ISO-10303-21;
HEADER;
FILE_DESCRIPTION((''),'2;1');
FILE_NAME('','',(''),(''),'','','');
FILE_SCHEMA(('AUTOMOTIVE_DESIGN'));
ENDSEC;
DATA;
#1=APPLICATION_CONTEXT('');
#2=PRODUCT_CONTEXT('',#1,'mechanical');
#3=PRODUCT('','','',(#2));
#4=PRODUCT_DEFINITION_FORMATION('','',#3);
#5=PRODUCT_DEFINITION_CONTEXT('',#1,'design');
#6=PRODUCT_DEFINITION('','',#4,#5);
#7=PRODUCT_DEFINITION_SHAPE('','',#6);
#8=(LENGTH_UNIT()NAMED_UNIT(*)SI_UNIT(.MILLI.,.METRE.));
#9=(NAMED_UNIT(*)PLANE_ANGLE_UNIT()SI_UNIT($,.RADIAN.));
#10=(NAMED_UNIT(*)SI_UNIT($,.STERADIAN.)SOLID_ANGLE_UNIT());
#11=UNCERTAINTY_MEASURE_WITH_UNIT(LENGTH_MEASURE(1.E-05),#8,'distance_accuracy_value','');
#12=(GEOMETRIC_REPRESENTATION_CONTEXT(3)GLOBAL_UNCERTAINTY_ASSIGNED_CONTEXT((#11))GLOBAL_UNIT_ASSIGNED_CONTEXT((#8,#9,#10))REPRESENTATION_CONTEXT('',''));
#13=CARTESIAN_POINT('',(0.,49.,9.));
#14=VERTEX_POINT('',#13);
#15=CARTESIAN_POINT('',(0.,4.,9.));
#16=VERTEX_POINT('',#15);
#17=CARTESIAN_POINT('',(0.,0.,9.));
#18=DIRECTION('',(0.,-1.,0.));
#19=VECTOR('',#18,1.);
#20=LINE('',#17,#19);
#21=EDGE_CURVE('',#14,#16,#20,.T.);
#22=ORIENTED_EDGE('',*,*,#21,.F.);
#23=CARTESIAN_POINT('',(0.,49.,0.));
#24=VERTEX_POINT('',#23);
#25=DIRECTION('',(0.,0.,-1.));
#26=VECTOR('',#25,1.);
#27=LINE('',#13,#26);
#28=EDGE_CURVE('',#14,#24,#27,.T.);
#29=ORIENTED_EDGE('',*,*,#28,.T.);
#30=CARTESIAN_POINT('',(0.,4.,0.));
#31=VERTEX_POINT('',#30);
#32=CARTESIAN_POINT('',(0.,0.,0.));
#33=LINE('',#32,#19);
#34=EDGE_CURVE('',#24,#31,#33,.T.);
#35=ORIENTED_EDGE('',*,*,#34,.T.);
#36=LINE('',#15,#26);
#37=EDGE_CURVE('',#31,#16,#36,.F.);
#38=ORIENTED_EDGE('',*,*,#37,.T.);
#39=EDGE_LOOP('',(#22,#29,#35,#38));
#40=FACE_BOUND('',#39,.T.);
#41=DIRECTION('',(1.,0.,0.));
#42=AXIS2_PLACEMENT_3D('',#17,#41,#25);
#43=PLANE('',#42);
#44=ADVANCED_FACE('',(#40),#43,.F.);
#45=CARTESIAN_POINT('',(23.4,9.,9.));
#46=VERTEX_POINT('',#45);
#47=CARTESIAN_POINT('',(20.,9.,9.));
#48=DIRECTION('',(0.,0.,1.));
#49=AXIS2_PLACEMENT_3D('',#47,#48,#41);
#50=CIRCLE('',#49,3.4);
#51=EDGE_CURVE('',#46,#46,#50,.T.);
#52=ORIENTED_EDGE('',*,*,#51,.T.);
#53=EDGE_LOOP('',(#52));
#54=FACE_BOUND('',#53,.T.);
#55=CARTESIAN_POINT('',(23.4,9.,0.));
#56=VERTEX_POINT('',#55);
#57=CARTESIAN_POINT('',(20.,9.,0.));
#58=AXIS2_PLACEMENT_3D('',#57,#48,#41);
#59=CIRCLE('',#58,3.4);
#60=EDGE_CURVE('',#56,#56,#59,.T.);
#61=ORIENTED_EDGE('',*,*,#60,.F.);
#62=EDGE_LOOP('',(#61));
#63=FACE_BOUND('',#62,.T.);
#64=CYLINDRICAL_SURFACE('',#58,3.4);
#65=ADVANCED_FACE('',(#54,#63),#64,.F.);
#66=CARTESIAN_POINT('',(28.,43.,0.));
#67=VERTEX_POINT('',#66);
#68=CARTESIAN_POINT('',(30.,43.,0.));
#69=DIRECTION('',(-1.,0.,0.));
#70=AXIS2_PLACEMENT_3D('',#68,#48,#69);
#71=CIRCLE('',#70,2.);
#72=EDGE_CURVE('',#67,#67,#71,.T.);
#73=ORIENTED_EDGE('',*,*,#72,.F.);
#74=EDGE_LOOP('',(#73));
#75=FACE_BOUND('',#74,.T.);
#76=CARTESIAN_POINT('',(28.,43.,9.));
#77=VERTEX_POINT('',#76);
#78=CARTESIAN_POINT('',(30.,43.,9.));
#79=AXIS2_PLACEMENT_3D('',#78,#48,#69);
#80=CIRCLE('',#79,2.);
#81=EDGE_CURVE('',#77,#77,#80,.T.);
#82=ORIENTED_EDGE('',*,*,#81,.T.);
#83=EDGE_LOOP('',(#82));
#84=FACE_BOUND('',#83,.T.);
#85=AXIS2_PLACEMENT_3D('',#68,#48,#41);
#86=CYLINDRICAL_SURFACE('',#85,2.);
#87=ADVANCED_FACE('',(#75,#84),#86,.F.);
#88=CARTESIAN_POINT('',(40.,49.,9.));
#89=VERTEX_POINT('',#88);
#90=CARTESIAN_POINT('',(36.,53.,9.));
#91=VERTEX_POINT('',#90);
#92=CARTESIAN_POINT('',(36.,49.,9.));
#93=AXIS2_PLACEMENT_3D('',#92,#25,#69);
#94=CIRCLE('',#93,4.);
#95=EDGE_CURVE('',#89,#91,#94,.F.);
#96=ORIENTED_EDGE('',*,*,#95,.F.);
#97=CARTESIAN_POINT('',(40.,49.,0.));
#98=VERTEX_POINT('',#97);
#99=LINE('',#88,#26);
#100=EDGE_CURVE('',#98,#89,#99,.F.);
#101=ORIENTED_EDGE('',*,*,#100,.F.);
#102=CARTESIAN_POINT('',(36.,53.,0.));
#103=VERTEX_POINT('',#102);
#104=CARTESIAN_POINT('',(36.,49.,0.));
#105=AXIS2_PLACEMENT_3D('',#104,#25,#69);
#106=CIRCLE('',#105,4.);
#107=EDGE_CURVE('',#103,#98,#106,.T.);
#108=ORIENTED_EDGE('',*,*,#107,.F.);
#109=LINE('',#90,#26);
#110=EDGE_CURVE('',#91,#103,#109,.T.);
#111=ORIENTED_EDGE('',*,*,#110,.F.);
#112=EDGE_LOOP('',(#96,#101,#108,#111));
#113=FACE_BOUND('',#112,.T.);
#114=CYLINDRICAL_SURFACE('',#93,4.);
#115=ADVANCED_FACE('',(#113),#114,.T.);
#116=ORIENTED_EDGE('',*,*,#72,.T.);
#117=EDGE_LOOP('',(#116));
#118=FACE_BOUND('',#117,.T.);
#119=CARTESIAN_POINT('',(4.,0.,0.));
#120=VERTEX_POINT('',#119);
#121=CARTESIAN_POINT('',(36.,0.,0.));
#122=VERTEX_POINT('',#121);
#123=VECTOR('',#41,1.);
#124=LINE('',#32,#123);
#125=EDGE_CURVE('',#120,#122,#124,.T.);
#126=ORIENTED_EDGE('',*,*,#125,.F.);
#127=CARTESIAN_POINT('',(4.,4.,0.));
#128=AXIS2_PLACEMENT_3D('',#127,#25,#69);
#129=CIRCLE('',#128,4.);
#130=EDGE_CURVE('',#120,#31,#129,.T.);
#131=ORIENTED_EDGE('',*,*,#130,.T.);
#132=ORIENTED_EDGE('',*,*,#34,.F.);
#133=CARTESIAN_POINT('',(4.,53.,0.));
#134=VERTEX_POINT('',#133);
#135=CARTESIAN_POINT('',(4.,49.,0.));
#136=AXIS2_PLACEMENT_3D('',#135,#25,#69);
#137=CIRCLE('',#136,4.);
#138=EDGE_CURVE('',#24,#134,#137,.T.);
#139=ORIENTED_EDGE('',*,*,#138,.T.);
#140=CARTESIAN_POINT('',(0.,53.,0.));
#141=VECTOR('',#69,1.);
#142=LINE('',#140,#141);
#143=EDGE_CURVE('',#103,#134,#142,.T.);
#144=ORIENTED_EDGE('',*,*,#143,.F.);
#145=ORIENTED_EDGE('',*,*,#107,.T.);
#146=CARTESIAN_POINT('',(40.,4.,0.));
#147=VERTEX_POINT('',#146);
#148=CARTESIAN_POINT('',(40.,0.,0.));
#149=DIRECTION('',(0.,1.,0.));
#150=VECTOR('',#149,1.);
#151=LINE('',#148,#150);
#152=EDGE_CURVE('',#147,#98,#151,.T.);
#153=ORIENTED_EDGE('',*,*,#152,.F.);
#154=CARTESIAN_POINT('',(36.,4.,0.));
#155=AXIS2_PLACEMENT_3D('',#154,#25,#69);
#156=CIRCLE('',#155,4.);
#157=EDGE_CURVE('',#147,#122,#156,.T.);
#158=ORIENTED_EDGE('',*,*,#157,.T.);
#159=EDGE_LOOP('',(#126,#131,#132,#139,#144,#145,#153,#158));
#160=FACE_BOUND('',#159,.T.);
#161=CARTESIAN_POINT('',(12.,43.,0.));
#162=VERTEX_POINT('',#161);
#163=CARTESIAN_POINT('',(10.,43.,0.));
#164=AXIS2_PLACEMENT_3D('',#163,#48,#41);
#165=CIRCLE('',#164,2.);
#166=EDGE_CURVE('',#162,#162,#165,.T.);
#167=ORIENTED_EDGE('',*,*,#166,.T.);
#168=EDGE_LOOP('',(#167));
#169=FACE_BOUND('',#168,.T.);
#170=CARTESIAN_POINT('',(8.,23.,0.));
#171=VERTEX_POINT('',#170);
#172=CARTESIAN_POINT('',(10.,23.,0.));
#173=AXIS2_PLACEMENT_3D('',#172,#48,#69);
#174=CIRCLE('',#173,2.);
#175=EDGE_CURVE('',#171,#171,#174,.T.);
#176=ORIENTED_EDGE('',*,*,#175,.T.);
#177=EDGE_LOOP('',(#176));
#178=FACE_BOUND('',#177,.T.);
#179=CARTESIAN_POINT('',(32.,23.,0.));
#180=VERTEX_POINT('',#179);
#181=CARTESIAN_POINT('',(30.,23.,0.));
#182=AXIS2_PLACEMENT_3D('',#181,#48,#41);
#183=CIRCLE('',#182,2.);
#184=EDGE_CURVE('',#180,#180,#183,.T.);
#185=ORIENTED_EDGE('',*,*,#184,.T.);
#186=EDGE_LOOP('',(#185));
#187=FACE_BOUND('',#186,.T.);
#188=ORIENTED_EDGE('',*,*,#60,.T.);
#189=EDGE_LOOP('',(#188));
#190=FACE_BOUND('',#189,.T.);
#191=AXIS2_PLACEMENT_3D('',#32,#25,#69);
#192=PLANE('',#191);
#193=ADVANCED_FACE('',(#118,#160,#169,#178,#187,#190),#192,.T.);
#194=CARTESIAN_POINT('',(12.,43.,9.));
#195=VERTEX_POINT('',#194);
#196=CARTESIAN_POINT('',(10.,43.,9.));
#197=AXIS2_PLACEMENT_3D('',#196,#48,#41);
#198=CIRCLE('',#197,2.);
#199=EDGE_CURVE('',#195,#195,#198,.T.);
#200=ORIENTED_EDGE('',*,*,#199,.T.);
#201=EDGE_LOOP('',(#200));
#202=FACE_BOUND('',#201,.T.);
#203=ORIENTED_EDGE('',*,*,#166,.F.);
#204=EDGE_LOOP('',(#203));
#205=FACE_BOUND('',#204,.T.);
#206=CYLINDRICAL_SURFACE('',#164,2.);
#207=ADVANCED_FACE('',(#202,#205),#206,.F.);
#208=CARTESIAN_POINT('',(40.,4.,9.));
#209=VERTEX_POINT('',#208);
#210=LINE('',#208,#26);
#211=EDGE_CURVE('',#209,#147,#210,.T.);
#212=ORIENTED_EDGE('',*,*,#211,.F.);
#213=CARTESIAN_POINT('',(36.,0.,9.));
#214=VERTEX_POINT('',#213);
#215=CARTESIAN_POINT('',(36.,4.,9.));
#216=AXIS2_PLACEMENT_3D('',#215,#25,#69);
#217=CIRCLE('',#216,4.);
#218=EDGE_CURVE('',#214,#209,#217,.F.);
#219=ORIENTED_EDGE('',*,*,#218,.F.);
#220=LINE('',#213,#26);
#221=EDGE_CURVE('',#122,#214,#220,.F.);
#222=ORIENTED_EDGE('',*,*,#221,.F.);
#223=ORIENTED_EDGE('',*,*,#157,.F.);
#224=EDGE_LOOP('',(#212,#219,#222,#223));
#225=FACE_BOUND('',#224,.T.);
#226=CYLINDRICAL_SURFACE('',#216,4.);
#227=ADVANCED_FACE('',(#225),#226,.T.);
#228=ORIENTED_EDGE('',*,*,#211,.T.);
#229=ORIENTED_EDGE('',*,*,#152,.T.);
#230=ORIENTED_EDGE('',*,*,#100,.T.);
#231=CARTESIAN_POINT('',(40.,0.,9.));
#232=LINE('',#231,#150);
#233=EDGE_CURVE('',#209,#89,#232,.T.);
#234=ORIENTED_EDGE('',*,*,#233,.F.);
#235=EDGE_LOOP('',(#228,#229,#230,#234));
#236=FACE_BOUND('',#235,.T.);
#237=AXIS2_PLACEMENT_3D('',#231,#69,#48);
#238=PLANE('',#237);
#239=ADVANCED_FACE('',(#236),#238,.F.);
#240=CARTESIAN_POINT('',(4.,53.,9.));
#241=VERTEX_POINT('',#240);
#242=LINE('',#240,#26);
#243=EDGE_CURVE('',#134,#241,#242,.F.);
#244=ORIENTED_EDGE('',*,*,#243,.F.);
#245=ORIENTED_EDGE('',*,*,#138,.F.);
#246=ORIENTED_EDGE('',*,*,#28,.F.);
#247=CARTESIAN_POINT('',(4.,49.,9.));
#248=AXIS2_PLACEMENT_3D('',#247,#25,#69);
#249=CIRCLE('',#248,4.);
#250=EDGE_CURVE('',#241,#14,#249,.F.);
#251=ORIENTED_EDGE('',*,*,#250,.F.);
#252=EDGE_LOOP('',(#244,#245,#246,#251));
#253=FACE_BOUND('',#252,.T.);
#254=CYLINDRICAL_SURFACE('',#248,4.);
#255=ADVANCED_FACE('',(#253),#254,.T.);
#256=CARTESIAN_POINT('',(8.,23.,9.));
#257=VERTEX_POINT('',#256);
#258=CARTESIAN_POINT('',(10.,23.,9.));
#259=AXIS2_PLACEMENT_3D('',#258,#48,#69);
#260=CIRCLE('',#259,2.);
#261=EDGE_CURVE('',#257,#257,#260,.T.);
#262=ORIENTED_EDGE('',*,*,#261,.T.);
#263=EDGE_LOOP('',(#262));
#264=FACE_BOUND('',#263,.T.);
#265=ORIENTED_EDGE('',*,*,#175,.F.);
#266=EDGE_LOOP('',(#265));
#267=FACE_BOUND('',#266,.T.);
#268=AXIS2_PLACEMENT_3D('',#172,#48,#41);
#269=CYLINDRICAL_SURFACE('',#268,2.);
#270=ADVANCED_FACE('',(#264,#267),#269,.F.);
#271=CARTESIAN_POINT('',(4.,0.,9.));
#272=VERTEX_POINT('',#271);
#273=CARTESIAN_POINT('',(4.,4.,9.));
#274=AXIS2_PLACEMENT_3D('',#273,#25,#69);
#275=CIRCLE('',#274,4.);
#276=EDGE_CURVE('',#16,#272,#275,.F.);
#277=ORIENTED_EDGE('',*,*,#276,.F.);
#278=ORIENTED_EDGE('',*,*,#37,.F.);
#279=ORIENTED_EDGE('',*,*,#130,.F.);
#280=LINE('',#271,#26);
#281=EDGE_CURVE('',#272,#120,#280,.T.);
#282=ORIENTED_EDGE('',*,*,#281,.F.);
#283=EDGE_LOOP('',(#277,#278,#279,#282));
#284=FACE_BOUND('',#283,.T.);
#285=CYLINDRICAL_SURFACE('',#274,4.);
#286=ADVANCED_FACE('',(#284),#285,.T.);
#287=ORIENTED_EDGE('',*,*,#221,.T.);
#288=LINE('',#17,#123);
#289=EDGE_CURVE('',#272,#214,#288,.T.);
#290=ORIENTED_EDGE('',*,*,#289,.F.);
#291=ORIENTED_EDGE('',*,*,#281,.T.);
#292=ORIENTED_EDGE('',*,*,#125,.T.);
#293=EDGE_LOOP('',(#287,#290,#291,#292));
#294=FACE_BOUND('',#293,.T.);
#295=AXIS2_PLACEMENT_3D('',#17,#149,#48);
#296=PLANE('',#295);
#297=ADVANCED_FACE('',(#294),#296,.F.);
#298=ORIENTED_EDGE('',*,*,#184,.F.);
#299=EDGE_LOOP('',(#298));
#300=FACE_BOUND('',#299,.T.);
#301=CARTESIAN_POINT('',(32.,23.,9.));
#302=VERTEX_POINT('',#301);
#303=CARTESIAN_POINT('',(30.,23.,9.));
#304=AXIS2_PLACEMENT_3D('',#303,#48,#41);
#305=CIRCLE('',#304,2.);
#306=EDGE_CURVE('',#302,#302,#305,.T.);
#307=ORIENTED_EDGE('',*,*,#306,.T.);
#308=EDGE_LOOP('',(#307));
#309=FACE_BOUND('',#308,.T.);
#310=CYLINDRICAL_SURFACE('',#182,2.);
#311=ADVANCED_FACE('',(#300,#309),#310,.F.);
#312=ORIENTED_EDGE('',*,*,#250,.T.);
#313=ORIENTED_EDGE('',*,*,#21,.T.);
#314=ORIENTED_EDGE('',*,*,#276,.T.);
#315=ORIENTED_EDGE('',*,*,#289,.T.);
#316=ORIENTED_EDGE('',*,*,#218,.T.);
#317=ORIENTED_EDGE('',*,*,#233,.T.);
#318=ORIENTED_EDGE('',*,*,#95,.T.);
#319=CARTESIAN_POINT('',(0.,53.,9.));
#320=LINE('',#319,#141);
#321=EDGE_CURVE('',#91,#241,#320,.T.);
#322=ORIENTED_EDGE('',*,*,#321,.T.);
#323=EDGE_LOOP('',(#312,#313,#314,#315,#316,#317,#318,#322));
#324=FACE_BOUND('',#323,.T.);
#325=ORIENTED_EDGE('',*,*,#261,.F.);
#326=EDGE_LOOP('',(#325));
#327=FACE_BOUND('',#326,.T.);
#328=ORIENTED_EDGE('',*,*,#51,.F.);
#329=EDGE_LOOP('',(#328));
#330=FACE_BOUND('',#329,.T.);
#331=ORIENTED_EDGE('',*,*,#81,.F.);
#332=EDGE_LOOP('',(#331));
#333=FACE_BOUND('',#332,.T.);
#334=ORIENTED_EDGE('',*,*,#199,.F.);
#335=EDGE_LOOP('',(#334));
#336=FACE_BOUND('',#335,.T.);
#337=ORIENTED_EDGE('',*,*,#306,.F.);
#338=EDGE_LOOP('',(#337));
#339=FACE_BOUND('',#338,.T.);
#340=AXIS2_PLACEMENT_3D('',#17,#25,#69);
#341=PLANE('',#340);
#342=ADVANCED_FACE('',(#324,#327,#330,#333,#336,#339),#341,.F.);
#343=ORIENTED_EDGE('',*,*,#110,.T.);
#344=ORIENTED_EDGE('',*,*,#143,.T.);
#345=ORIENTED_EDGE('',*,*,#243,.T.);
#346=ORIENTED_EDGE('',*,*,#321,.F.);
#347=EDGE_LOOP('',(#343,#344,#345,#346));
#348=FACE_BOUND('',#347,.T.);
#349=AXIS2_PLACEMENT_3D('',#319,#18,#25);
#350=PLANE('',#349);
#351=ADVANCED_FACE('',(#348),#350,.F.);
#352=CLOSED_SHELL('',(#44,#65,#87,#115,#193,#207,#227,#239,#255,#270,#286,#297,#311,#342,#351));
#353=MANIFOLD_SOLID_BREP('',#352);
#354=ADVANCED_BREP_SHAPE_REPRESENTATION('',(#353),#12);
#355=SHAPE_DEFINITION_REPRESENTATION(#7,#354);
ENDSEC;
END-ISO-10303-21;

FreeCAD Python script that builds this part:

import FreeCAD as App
import Part
import Sketcher

V = App.Vector
Q = App.Units.Quantity


def edges_at(feature, points):
    """Names of the edges that pass closest to the given points."""
    edges = feature.Shape.Edges
    near = lambda p: min(range(len(edges)), key=lambda i: edges[i].distToShape(Part.Vertex(*p))[0])
    return sorted({f"Edge{near(p) + 1}" for p in points})

doc = App.newDocument("Part")
body = doc.addObject("PartDesign::Body", "Body")

# Sketch on XY plane
sketch1 = body.newObject("Sketcher::SketchObject", "Sketch")
sketch1.AttachmentSupport = (doc.getObject("XY_Plane"), [""])
sketch1.MapMode = "FlatFace"
sketch1.addGeometry([
    Part.LineSegment(V(0, 53, 0), V(0, 0, 0)),
    Part.LineSegment(V(0, 0, 0), V(40, 0, 0)),
    Part.LineSegment(V(40, 0, 0), V(40, 53, 0)),
    Part.LineSegment(V(40, 53, 0), V(0, 53, 0)),
], False)
sketch1.addConstraint([
    Sketcher.Constraint("Coincident", 0, 2, 1, 1),
    Sketcher.Constraint("Coincident", 1, 2, 2, 1),
    Sketcher.Constraint("Coincident", 2, 2, 3, 1),
    Sketcher.Constraint("Coincident", 3, 2, 0, 1),
    Sketcher.Constraint("Vertical", 0),
    Sketcher.Constraint("Horizontal", 1),
    Sketcher.Constraint("Vertical", 2),
    Sketcher.Constraint("Horizontal", 3),
    Sketcher.Constraint("Coincident", 0, 2, -1, 1),
    Sketcher.Constraint("DistanceX", 1, 1, 1, 2, Q("40 mm")),
    Sketcher.Constraint("DistanceY", 0, 2, 0, 1, Q("53 mm")),
])
pad1 = body.newObject("PartDesign::Pad", "Pad")
pad1.Profile = sketch1
pad1.Length = 9

# Sketch on XY plane
sketch2 = body.newObject("Sketcher::SketchObject", "Sketch001")
sketch2.AttachmentSupport = (doc.getObject("XY_Plane"), [""])
sketch2.MapMode = "FlatFace"
sketch2.AttachmentOffset = App.Placement(V(0, 0, 9), App.Rotation())
sketch2.addGeometry([
    Part.Circle(V(10, 43, 0), V(0, 0, 1), 2),  # 0
    Part.Circle(V(30, 43, 0), V(0, 0, 1), 2),  # 1
    Part.Circle(V(30, 23, 0), V(0, 0, 1), 2),  # 2
    Part.Circle(V(10, 23, 0), V(0, 0, 1), 2),  # 3
    Part.Circle(V(20, 9, 0), V(0, 0, 1), 3.4),  # 4
], False)
sketch2.addConstraint([
    Sketcher.Constraint("Equal", 0, 1),
    Sketcher.Constraint("Equal", 1, 2),
    Sketcher.Constraint("Equal", 2, 3),
    Sketcher.Constraint("Horizontal", 0, 3, 1, 3),
    Sketcher.Constraint("Horizontal", 2, 3, 3, 3),
    Sketcher.Constraint("Vertical", 1, 3, 2, 3),
    Sketcher.Constraint("Vertical", 0, 3, 3, 3),
    Sketcher.Constraint("Diameter", 0, Q("4 mm")),
    Sketcher.Constraint("Diameter", 4, Q("6.8 mm")),
    Sketcher.Constraint("DistanceX", -1, 1, 0, 3, Q("10 mm")),
    Sketcher.Constraint("DistanceY", -1, 1, 0, 3, Q("43 mm")),
    Sketcher.Constraint("DistanceX", -1, 1, 1, 3, Q("30 mm")),
    Sketcher.Constraint("DistanceY", -1, 1, 2, 3, Q("23 mm")),
    Sketcher.Constraint("DistanceX", -1, 1, 4, 3, Q("20 mm")),
    Sketcher.Constraint("DistanceY", -1, 1, 4, 3, Q("9 mm")),
])
pocket1 = body.newObject("PartDesign::Pocket", "Pocket")
pocket1.Profile = sketch2
pocket1.Type = "ThroughAll"
doc.recompute()

fillet = body.newObject("PartDesign::Fillet", "Fillet")
fillet.Base = (pocket1, edges_at(pocket1, [
    (0, 53, 4.5),
    (40, 53, 4.5),
    (40, 0, 4.5),
    (0, 0, 4.5),
]))
fillet.Radius = 4

doc.recompute()
